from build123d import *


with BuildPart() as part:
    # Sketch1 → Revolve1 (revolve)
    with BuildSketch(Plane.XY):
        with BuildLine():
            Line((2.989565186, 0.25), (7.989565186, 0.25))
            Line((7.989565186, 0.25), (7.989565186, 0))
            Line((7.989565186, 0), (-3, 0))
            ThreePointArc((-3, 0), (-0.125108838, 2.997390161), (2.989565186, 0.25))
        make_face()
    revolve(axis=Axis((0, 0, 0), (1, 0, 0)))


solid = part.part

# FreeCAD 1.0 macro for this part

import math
import FreeCAD as App
import Part
import Sketcher

V = App.Vector
Q = App.Units.Quantity

doc = App.newDocument("Part")
body = doc.addObject("PartDesign::Body", "Body")

# Sketch on XY plane
sketch1 = body.newObject("Sketcher::SketchObject", "Sketch")
sketch1.AttachmentSupport = (doc.getObject("XY_Plane"), [""])
sketch1.MapMode = "FlatFace"
sketch1.addGeometry(Part.LineSegment(V(7.989565, 0.25, 0), V(2.989565, 0.25, 0)), False)
sketch1.addGeometry(Part.ArcOfCircle(Part.Circle(V(0, 0, 0), V(0, 0, 1), 3), math.radians(4.780192), math.radians(180)), False)
sketch1.addGeometry(Part.LineSegment(V(-3, 0, 0), V(7.989565, 0, 0)), False)
sketch1.addGeometry(Part.LineSegment(V(7.989565, 0, 0), V(7.989565, 0.25, 0)), False)
sketch1.addConstraint(Sketcher.Constraint("Coincident", 0, 2, 1, 1))
sketch1.addConstraint(Sketcher.Constraint("Coincident", 1, 2, 2, 1))
sketch1.addConstraint(Sketcher.Constraint("Coincident", 2, 2, 3, 1))
sketch1.addConstraint(Sketcher.Constraint("Coincident", 3, 2, 0, 1))
sketch1.addConstraint(Sketcher.Constraint("Horizontal", 0))
sketch1.addConstraint(Sketcher.Constraint("Horizontal", 2))
sketch1.addConstraint(Sketcher.Constraint("Vertical", 3))
sketch1.addConstraint(Sketcher.Constraint("Coincident", 1, 3, -1, 1))
sketch1.addConstraint(Sketcher.Constraint("PointOnObject", 1, 2, -1))
sketch1.addConstraint(Sketcher.Constraint("Radius", 1, Q("3 mm")))
sketch1.addConstraint(Sketcher.Constraint("DistanceX", 0, 2, 0, 1, Q("5 mm")))
sketch1.addConstraint(Sketcher.Constraint("DistanceY", 3, 1, 3, 2, Q("0.25 mm")))
revolution = body.newObject("PartDesign::Revolution", "Revolution")
revolution.Profile = sketch1
revolution.ReferenceAxis = (sketch1, ["H_Axis"])
revolution.Angle = 360

doc.recompute()
